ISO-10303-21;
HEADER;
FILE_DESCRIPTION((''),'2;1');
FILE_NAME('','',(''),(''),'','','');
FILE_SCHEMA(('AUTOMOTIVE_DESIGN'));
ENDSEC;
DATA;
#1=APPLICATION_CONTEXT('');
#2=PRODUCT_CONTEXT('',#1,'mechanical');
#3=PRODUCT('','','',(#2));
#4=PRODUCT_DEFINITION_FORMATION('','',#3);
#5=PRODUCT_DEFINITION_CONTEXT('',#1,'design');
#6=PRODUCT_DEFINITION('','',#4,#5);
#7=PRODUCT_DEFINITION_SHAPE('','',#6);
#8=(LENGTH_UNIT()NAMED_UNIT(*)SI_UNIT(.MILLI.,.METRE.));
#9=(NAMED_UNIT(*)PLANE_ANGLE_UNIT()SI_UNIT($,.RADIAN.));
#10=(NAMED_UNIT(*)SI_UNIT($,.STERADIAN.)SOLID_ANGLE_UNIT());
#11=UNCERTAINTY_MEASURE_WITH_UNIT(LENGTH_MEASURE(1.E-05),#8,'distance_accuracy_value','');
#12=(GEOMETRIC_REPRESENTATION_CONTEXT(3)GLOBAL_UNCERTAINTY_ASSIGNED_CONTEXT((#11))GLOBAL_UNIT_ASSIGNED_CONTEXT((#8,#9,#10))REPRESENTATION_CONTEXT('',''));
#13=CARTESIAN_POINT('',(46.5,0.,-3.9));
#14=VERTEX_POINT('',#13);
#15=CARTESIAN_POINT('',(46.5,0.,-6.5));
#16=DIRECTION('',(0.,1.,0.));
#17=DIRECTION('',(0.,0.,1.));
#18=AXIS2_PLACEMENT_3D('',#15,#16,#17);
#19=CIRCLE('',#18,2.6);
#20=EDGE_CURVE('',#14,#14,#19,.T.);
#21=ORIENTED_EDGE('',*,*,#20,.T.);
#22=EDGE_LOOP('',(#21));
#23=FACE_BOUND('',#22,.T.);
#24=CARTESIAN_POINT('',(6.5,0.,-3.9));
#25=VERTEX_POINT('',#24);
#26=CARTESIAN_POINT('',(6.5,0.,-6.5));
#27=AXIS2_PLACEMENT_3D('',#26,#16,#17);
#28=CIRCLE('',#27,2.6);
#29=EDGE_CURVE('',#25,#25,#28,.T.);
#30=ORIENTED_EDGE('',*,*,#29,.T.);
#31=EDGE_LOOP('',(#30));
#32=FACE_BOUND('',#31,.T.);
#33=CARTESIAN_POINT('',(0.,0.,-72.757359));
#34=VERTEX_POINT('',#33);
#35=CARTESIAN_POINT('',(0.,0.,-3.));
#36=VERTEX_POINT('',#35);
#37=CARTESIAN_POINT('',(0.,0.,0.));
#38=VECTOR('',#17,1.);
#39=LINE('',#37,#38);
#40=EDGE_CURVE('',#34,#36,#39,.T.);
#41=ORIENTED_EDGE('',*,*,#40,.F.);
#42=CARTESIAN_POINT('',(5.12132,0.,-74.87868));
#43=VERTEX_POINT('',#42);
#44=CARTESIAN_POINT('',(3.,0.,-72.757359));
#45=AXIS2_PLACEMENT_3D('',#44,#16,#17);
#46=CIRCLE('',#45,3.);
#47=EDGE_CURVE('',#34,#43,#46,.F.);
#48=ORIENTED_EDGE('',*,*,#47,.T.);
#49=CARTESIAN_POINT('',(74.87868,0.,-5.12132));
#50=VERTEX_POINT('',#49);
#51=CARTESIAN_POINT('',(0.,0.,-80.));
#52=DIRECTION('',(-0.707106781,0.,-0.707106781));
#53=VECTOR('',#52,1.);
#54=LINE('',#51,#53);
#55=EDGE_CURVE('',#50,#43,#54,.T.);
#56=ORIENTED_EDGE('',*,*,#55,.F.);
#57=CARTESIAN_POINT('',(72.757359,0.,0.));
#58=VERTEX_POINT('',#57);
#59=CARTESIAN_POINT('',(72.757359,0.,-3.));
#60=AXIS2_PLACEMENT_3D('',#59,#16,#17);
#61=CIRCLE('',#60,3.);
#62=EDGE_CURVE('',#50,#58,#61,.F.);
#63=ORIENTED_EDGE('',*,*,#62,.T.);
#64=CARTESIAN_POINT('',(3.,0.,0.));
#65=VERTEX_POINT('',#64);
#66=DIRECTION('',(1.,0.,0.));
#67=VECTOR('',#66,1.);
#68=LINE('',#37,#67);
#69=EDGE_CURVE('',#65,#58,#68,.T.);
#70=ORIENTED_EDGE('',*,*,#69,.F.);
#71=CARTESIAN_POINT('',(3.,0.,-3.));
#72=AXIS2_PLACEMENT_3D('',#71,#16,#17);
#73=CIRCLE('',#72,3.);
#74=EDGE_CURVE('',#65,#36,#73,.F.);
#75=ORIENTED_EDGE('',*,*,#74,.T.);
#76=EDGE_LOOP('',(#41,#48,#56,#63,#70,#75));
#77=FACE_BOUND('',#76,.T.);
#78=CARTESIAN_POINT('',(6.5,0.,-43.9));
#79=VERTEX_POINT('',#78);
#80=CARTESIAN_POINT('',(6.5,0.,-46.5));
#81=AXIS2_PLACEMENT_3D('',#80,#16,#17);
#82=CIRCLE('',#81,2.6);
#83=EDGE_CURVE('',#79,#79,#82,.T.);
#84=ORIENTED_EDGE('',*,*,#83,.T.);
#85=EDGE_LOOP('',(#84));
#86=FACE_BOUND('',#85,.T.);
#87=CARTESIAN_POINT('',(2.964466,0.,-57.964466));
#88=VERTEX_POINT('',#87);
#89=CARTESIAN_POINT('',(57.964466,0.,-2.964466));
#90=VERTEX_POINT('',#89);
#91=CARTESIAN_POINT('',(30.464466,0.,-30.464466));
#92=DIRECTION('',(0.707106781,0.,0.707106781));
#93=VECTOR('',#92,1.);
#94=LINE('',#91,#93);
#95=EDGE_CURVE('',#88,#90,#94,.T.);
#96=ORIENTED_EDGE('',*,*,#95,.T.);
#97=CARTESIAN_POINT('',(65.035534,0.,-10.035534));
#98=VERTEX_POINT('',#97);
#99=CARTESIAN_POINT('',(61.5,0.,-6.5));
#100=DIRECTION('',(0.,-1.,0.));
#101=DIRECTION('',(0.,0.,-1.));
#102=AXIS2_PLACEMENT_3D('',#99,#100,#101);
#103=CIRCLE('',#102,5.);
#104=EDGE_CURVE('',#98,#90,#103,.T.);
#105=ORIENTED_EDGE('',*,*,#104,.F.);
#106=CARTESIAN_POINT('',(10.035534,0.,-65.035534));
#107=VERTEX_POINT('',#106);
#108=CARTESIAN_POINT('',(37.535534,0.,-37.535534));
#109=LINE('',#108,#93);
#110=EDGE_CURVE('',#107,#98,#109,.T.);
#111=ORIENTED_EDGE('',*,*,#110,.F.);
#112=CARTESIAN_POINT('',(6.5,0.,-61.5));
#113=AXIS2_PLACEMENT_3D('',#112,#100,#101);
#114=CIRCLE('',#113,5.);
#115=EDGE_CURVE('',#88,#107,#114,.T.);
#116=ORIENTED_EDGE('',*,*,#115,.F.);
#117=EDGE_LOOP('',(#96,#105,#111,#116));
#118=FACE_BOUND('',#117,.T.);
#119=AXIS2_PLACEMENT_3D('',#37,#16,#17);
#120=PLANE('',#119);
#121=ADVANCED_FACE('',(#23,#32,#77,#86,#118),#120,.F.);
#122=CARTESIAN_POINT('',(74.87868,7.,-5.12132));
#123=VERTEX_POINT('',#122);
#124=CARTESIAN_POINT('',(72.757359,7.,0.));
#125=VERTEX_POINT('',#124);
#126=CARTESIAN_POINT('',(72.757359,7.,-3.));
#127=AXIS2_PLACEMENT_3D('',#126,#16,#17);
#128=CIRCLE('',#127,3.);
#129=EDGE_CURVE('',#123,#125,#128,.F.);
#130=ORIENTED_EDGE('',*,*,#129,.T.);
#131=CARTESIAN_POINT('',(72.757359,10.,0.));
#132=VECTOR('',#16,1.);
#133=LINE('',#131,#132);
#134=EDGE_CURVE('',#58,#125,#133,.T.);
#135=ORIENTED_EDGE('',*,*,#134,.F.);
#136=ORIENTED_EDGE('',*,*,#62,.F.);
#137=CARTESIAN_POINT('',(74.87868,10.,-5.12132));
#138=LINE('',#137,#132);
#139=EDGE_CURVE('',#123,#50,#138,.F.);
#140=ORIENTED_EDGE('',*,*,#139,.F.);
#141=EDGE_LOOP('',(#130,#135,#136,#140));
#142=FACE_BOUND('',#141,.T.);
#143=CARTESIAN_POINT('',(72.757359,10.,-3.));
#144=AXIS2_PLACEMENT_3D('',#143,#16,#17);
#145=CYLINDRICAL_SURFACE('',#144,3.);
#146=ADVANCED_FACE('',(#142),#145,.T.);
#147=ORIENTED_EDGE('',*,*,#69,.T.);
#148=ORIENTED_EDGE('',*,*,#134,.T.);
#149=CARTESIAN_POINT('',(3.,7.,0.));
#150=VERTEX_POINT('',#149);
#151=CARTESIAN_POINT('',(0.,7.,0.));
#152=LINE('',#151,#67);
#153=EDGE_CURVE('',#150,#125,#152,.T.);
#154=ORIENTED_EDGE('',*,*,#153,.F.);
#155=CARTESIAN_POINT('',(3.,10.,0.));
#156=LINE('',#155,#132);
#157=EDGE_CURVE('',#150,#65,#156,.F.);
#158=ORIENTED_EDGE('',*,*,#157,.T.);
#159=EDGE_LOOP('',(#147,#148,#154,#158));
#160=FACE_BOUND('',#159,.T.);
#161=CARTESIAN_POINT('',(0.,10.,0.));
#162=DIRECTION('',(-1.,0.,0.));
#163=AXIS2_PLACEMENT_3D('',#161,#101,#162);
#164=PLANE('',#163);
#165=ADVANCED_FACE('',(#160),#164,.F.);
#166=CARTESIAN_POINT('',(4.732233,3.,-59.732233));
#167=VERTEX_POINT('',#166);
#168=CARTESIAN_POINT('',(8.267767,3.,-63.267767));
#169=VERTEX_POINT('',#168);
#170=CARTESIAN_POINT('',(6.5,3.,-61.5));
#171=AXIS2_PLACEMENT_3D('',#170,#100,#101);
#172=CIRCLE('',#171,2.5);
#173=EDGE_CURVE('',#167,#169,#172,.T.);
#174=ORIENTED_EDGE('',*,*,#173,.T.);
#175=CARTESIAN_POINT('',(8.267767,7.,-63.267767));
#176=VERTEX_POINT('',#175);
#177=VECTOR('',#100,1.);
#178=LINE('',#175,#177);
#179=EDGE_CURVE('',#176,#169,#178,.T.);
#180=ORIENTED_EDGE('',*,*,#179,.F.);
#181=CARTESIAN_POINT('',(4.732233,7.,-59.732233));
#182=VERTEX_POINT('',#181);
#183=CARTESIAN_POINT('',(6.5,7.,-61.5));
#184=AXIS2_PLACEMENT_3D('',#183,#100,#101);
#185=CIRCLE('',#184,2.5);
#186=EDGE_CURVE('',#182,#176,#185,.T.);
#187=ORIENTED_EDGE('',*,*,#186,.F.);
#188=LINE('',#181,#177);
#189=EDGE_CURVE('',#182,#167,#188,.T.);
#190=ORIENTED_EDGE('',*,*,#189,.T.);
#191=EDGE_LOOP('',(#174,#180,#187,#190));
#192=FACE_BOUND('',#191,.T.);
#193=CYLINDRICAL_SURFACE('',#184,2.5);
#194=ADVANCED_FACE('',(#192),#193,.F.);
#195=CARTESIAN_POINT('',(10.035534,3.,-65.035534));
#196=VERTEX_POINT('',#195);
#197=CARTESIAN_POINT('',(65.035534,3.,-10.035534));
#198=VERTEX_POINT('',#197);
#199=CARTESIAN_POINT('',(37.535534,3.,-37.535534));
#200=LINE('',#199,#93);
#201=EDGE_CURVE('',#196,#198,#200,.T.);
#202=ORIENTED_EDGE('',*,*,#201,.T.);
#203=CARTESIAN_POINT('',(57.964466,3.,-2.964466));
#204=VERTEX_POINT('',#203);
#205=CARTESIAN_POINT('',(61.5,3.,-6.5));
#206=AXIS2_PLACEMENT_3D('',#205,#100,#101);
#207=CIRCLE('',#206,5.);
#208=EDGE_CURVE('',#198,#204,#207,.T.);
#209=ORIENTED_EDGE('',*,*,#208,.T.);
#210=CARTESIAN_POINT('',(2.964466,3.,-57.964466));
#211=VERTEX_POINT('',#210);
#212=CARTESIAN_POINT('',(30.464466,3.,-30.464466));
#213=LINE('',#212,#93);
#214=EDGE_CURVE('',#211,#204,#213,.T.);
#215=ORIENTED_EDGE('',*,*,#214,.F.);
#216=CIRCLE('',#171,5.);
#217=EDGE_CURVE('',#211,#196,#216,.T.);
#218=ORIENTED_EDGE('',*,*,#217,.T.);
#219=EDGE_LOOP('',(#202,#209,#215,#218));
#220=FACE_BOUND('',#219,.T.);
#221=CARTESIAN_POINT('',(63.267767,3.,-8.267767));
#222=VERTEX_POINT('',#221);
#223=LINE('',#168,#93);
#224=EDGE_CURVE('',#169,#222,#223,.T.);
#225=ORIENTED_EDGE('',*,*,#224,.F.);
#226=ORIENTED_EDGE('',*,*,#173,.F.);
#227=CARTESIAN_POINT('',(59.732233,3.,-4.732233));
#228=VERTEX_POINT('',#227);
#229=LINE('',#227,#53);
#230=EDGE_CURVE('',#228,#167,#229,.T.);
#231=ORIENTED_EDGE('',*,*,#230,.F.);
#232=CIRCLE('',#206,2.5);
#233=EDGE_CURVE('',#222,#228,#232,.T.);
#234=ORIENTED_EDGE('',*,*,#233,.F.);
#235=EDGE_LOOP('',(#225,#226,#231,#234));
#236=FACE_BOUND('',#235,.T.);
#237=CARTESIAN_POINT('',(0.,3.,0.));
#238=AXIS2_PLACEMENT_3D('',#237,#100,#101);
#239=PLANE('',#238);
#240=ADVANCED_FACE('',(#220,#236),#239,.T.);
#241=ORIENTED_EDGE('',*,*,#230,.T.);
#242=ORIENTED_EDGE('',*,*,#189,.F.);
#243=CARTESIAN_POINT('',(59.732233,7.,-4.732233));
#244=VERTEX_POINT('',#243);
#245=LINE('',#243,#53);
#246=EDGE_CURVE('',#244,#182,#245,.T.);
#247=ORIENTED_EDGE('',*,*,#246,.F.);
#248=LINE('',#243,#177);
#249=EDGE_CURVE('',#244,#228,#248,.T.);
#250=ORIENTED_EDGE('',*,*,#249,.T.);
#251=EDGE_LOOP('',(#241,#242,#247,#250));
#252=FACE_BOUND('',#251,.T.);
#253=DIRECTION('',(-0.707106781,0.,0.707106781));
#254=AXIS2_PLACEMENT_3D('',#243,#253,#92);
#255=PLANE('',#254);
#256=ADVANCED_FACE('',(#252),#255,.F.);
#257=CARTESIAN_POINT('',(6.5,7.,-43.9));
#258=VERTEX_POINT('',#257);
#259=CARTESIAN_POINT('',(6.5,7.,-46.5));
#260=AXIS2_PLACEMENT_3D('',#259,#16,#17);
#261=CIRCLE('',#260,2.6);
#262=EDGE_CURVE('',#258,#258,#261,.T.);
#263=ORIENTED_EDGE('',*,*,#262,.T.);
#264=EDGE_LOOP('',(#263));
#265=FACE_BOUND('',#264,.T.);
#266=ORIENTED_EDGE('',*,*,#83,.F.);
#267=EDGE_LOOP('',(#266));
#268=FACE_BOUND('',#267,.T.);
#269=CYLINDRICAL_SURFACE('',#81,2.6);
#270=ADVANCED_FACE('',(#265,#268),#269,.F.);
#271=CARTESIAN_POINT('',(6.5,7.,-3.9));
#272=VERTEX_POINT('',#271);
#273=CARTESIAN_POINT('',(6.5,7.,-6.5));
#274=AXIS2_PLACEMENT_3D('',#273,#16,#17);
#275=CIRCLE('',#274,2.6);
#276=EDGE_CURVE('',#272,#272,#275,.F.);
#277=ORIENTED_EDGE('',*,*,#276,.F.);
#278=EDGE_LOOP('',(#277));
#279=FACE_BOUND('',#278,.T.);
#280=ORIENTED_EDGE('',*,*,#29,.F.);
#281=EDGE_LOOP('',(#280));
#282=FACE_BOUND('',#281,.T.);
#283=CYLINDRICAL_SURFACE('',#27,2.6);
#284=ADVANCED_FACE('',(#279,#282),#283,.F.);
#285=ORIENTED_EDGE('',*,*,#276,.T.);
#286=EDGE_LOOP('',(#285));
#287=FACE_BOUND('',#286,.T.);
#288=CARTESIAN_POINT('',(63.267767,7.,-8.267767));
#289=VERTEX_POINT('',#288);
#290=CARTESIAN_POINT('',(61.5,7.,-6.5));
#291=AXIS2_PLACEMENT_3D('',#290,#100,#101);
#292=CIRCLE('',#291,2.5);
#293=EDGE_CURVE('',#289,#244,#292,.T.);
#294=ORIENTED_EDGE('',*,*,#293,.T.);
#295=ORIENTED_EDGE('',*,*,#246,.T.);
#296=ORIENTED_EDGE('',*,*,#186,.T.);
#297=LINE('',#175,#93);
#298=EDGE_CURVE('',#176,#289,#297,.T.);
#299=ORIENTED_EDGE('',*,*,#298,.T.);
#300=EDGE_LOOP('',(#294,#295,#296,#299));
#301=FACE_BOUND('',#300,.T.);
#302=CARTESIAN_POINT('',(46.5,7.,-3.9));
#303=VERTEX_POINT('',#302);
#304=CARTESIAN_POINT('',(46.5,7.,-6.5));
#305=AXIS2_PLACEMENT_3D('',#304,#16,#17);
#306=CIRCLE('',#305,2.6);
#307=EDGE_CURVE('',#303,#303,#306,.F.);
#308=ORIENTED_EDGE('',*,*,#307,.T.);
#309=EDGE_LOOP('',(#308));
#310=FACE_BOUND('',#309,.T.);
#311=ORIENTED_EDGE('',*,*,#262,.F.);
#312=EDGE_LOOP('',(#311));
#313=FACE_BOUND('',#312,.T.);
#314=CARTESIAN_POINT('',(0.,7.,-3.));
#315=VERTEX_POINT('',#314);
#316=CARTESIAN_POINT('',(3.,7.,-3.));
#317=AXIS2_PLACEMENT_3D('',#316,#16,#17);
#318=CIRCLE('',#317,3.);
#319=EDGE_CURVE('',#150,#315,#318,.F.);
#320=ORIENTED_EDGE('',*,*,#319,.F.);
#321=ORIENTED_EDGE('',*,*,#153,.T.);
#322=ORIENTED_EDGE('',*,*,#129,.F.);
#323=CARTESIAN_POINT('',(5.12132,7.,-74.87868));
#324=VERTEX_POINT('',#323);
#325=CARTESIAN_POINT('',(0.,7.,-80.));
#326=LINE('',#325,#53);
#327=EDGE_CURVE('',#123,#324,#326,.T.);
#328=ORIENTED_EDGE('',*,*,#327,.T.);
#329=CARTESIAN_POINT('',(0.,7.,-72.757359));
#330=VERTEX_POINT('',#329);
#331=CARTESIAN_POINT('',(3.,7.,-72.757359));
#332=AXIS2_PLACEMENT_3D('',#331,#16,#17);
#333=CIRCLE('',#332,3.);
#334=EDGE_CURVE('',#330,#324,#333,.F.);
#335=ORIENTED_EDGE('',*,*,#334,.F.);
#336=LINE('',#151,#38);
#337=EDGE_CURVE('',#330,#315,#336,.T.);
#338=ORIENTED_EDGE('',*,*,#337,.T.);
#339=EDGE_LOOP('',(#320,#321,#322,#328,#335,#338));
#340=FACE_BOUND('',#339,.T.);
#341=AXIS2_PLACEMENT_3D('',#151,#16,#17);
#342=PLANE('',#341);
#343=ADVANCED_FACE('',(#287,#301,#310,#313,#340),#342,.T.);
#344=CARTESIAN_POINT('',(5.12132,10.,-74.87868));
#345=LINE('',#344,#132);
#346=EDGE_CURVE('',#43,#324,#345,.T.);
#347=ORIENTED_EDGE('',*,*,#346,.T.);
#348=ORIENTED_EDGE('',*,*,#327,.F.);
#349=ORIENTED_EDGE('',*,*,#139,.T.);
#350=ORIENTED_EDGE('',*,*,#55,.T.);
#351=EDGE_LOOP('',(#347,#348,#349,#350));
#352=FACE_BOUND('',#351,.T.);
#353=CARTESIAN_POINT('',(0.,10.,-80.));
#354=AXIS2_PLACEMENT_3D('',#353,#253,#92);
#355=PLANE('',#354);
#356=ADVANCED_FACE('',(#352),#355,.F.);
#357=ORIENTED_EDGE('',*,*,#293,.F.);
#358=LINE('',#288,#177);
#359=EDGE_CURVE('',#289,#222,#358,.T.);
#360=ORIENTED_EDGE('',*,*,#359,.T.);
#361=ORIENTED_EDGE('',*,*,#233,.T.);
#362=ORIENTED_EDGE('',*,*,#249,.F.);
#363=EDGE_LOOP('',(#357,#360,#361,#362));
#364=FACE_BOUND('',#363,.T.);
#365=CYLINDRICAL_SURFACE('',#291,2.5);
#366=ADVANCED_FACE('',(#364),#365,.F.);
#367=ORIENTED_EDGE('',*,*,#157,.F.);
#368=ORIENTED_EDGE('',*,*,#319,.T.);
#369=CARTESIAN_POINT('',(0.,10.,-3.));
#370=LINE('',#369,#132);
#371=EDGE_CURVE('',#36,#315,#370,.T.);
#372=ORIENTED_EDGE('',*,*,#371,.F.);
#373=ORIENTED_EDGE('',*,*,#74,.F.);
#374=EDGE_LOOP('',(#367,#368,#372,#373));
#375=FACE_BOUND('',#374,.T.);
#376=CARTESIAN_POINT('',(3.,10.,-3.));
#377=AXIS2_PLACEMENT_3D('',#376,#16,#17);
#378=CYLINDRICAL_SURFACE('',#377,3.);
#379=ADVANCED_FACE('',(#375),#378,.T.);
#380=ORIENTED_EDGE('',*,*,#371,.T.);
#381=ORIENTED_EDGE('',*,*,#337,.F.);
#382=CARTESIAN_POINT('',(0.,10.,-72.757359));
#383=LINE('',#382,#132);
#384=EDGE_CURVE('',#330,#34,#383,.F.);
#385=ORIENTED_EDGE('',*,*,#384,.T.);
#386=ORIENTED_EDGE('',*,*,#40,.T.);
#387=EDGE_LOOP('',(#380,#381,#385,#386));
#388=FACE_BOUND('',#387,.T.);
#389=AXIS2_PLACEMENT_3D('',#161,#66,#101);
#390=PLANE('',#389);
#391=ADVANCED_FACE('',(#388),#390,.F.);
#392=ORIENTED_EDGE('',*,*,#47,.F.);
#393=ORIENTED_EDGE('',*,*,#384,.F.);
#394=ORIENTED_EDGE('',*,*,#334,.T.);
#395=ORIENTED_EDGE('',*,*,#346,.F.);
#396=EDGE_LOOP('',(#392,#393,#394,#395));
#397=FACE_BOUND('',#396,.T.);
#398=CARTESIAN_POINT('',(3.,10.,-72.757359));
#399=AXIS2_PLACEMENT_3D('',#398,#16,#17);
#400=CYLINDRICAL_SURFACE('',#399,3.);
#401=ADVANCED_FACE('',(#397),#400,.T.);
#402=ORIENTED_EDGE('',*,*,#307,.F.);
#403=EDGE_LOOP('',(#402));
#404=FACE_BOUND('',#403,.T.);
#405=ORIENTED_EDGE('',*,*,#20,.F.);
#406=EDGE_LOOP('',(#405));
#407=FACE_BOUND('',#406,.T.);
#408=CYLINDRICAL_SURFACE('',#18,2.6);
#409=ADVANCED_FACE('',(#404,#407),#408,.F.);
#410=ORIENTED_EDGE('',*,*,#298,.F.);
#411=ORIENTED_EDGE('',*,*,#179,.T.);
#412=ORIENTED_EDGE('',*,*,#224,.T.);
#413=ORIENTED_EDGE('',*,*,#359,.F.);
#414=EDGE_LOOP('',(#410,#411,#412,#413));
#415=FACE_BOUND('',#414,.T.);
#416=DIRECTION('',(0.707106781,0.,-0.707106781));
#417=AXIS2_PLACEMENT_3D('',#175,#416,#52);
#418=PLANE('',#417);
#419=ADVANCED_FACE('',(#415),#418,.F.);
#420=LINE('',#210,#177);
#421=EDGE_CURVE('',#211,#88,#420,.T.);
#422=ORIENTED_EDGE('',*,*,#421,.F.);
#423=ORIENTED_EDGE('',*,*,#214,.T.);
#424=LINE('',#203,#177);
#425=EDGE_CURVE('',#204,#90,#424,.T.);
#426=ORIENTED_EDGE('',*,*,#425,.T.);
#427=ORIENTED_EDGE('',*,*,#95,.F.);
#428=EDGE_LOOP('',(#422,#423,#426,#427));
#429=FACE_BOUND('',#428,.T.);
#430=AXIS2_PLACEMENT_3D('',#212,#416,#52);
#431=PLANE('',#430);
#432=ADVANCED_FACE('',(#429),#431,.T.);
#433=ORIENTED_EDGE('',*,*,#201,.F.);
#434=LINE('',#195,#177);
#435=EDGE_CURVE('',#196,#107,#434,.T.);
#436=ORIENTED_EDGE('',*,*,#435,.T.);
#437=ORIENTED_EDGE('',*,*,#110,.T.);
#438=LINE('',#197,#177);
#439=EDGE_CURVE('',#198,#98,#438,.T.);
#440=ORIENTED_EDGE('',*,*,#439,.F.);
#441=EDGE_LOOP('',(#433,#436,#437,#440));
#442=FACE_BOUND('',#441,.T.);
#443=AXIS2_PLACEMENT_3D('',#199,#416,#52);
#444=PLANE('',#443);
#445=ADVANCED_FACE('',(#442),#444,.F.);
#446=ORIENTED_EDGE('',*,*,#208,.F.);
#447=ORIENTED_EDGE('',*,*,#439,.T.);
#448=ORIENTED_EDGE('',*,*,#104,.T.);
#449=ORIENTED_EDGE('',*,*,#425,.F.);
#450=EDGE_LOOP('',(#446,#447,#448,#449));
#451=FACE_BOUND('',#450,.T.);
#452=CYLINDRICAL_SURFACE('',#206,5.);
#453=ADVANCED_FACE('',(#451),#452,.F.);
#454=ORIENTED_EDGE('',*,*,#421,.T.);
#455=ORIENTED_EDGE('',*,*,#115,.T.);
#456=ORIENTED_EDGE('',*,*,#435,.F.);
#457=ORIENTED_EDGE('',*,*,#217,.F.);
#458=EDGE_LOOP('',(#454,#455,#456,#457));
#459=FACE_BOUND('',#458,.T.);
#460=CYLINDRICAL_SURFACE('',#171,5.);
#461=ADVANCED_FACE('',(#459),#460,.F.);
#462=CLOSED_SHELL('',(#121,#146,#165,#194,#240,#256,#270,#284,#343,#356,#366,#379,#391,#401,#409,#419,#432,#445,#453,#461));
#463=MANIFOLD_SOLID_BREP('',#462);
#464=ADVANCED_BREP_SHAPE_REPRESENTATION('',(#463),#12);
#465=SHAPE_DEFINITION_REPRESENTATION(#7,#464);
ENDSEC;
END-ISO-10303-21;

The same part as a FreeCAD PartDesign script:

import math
import FreeCAD as App
import Part
import Sketcher
from FreeCAD import Vector
Q = App.Units.Quantity


def edges_at(feature, points):
    """Names of the edges that pass closest to the given points."""
    edges = feature.Shape.Edges
    near = lambda p: min(range(len(edges)), key=lambda i: edges[i].distToShape(Part.Vertex(*p))[0])
    return sorted({f"Edge{near(p) + 1}" for p in points})

doc = App.newDocument("Part")
params = doc.addObject("Spreadsheet::Sheet", "Params")
for row, (alias, value) in enumerate([
    ("sketch1_width", "80 mm"),
    ("pad1_length", "10 mm"),
    ("sketch2_diameter", "5.2 mm"),
    ("pocket1_length", "10 mm"),
    ("fillet_radius", "3 mm"),
    ("fillet2_radius", "3 mm"),
    ("fillet3_radius", "3 mm"),
    ("sketch3_diameter", "11 mm"),
    ("pocket2_length", "5 mm"),
    ("pocket3_length", "9 mm"),
    ("sketch5_radius", "2.6 mm"),
    ("pad2_length", "5 mm"),
    ("sketch6_radius", "5.5 mm"),
    ("pocket4_length", "5 mm"),
    ("sketch7_radius", "5.5 mm"),
    ("pad3_length", "5 mm"),
    ("sketch8_diameter", "11 mm"),
    ("pad4_length", "5 mm"),
    ("sketch9_diameter", "11 mm"),
    ("pocket5_length", "3 mm"),
    ("sketch10_diameter", "5.3 mm"),
    ("pocket6_length", "3 mm"),
    ("sketch11_diameter", "5.3 mm"),
    ("pocket7_length", "5 mm"),
    ("sketch12_diameter", "5.3 mm"),
    ("pad5_length", "10 mm"),
    ("sketch13_diameter", "11 mm"),
    ("pad6_length", "3 mm"),
    ("sketch14_radius", "5 mm"),
    ("pocket8_length", "3 mm"),
    ("sketch15_diameter", "11 mm"),
    ("sketch15_diameter2", "5.2 mm"),
    ("pad7_length", "5 mm"),
    ("pocket9_length", "3 mm"),
    ("sketch17_radius", "2.5 mm"),
    ("sketch18_diameter", "5.2 mm"),
], start=1):
    params.set(f"A{row}", alias)
    params.set(f"B{row}", "=" + value)
    params.setAlias(f"B{row}", alias)

body = doc.addObject("PartDesign::Body", "Body")

# Sketch on XZ plane
sketch1 = doc.addObject("Sketcher::SketchObject", "Sketch")
body.addObject(sketch1)
sketch1.AttachmentSupport = (doc.XZ_Plane, [""])
sketch1.MapMode = "FlatFace"
sketch1.addGeometry(Part.LineSegment(Vector(0, -80, 0), Vector(0, 0, 0)), False)
sketch1.addGeometry(Part.LineSegment(Vector(0, 0, 0), Vector(80, 0, 0)), False)
sketch1.addGeometry(Part.LineSegment(Vector(80, 0, 0), Vector(0, -80, 0)), False)
sketch1.addConstraint(Sketcher.Constraint("Coincident", 0, 2, 1, 1))
sketch1.addConstraint(Sketcher.Constraint("Coincident", 1, 2, 2, 1))
sketch1.addConstraint(Sketcher.Constraint("Coincident", 2, 2, 0, 1))
sketch1.addConstraint(Sketcher.Constraint("Vertical", 0))
sketch1.addConstraint(Sketcher.Constraint("Horizontal", 1))
sketch1.addConstraint(Sketcher.Constraint("Coincident", 0, 2, -1, 1))
sketch1.addConstraint(Sketcher.Constraint("Equal", 1, 0))
sketch1.addConstraint(Sketcher.Constraint("DistanceX", 1, 1, 1, 2, 80.0))
sketch1.setExpression("Constraints[7]", "Params.sketch1_width")
pad1 = doc.addObject("PartDesign::Pad", "Pad")
body.addObject(pad1)
pad1.Profile = sketch1
pad1.setExpression("Length", "Params.pad1_length")
pad1.Reversed = True

# Sketch on XZ plane
sketch2 = doc.addObject("Sketcher::SketchObject", "Sketch001")
body.addObject(sketch2)
sketch2.AttachmentSupport = (doc.XZ_Plane, [""])
sketch2.MapMode = "FlatFace"
sketch2.AttachmentOffset = App.Placement(Vector(0, 0, -10), App.Rotation())
sketch2.addGeometry(Part.Circle(Vector(6.5, -6.5, 0), Vector(0, 0, 1), 2.6), False)
sketch2.addGeometry(Part.Circle(Vector(6.5, -46.5, 0), Vector(0, 0, 1), 2.6), False)
sketch2.addGeometry(Part.Circle(Vector(46.5, -6.5, 0), Vector(0, 0, 1), 2.6), False)
sketch2.addConstraint(Sketcher.Constraint("Equal", 0, 1))
sketch2.addConstraint(Sketcher.Constraint("Equal", 1, 2))
sketch2.addConstraint(Sketcher.Constraint("Horizontal", 0, 3, 2, 3))
sketch2.addConstraint(Sketcher.Constraint("Vertical", 0, 3, 1, 3))
sketch2.addConstraint(Sketcher.Constraint("Diameter", 0, 5.2))
sketch2.addConstraint(Sketcher.Constraint("DistanceY", 1, 3, 0, 3, 40.0))
sketch2.addConstraint(Sketcher.Constraint("DistanceX", 0, 3, 2, 3, 40.0))
sketch2.addConstraint(Sketcher.Constraint("DistanceX", -1, 1, 0, 3, 6.5))
sketch2.addConstraint(Sketcher.Constraint("DistanceY", 0, 3, -1, 1, 6.5))
sketch2.setExpression("Constraints[4]", "Params.sketch2_diameter")
pocket1 = doc.addObject("PartDesign::Pocket", "Pocket")
body.addObject(pocket1)
pocket1.Profile = sketch2
pocket1.setExpression("Length", "Params.pocket1_length")
pocket1.Reversed = True
doc.recompute()

fillet = doc.addObject("PartDesign::Fillet", "Fillet")
body.addObject(fillet)
fillet.Base = (pocket1, edges_at(pocket1, [(80, 5, 0)]))
fillet.setExpression("Radius", "Params.fillet_radius")
doc.recompute()

fillet2 = doc.addObject("PartDesign::Fillet", "Fillet001")
body.addObject(fillet2)
fillet2.Base = (fillet, edges_at(fillet, [(0, 5, -80)]))
fillet2.setExpression("Radius", "Params.fillet2_radius")
doc.recompute()

fillet3 = doc.addObject("PartDesign::Fillet", "Fillet002")
body.addObject(fillet3)
fillet3.Base = (fillet2, edges_at(fillet2, [(0, 5, 0)]))
fillet3.setExpression("Radius", "Params.fillet3_radius")

# Sketch on XZ plane
sketch3 = doc.addObject("Sketcher::SketchObject", "Sketch002")
body.addObject(sketch3)
sketch3.AttachmentSupport = (doc.XZ_Plane, [""])
sketch3.MapMode = "FlatFace"
sketch3.AttachmentOffset = App.Placement(Vector(0, 0, -10), App.Rotation())
sketch3.addGeometry(Part.Circle(Vector(6, -6, 0), Vector(0, 0, 1), 6), False)
sketch3.addGeometry(Part.Circle(Vector(6, -46, 0), Vector(0, 0, 1), 6), False)
sketch3.addGeometry(Part.Circle(Vector(46, -6, 0), Vector(0, 0, 1), 6), False)
sketch3.addConstraint(Sketcher.Constraint("Equal", 0, 1))
sketch3.addConstraint(Sketcher.Constraint("Equal", 1, 2))
sketch3.addConstraint(Sketcher.Constraint("Horizontal", 0, 3, 2, 3))
sketch3.addConstraint(Sketcher.Constraint("Vertical", 0, 3, 1, 3))
sketch3.addConstraint(Sketcher.Constraint("Diameter", 0, 11.0))
sketch3.addConstraint(Sketcher.Constraint("DistanceY", 1, 3, 0, 3, 40.0))
sketch3.addConstraint(Sketcher.Constraint("DistanceX", 0, 3, 2, 3, 40.0))
sketch3.addConstraint(Sketcher.Constraint("DistanceX", -1, 1, 0, 3, 6.5))
sketch3.addConstraint(Sketcher.Constraint("DistanceY", 0, 3, -1, 1, 6.5))
sketch3.setExpression("Constraints[4]", "Params.sketch3_diameter")
pocket2 = doc.addObject("PartDesign::Pocket", "Pocket001")
body.addObject(pocket2)
pocket2.Profile = sketch3
pocket2.setExpression("Length", "Params.pocket2_length")
pocket2.Reversed = True

# Sketch on XZ plane
sketch4 = doc.addObject("Sketcher::SketchObject", "Sketch003")
body.addObject(sketch4)
sketch4.AttachmentSupport = (doc.XZ_Plane, [""])
sketch4.MapMode = "FlatFace"
sketch4.addGeometry(Part.Circle(Vector(8.5, -46.5, 0), Vector(0, 0, 1), 2.6), False)
sketch4.addConstraint(Sketcher.Constraint("DistanceX", -1, 1, 0, 3, 8.5))
sketch4.addConstraint(Sketcher.Constraint("DistanceY", 0, 3, -1, 1, 46.5))
sketch4.addConstraint(Sketcher.Constraint("Diameter", 0, 5.107365))
pocket3 = doc.addObject("PartDesign::Pocket", "Pocket002")
body.addObject(pocket3)
pocket3.Profile = sketch4
pocket3.setExpression("Length", "Params.pocket3_length")

# Sketch on XZ plane
sketch5 = doc.addObject("Sketcher::SketchObject", "Sketch004")
body.addObject(sketch5)
sketch5.AttachmentSupport = (doc.XZ_Plane, [""])
sketch5.MapMode = "FlatFace"
sketch5.addGeometry(Part.ArcOfCircle(Part.Circle(Vector(8.5, -46.5, 0), Vector(0, 0, 1), 2.6), math.radians(112), math.radians(248)), False)
sketch5.addGeometry(Part.ArcOfCircle(Part.Circle(Vector(6.5, -46.5, 0), Vector(0, 0, 1), 2.6), math.radians(66), math.radians(294)), False)
sketch5.addConstraint(Sketcher.Constraint("Coincident", 0, 1, 1, 1))
sketch5.addConstraint(Sketcher.Constraint("Coincident", 1, 2, 0, 2))
sketch5.addConstraint(Sketcher.Constraint("Horizontal", 0, 3, 1, 3))
sketch5.addConstraint(Sketcher.Constraint("Radius", 1, 2.6))
sketch5.addConstraint(Sketcher.Constraint("DistanceX", 1, 3, 0, 3, 2.0))
sketch5.addConstraint(Sketcher.Constraint("DistanceX", -1, 1, 0, 3, 8.5))
sketch5.addConstraint(Sketcher.Constraint("DistanceY", 0, 3, -1, 1, 46.5))
sketch5.addConstraint(Sketcher.Constraint("Radius", 0, 2.553683))
sketch5.setExpression("Constraints[3]", "Params.sketch5_radius")
pad2 = doc.addObject("PartDesign::Pad", "Pad001")
body.addObject(pad2)
pad2.Profile = sketch5
pad2.setExpression("Length", "Params.pad2_length")
pad2.Reversed = True

# Sketch on XZ plane
sketch6 = doc.addObject("Sketcher::SketchObject", "Sketch005")
body.addObject(sketch6)
sketch6.AttachmentSupport = (doc.XZ_Plane, [""])
sketch6.MapMode = "FlatFace"
sketch6.AttachmentOffset = App.Placement(Vector(0, 0, -10), App.Rotation())
sketch6.addGeometry(Part.ArcOfCircle(Part.Circle(Vector(8, -46, 0), Vector(0, 0, 1), 6), math.radians(-100), math.radians(100)), False)
sketch6.addGeometry(Part.ArcOfCircle(Part.Circle(Vector(6, -46, 0), Vector(0, 0, 1), 6), math.radians(80), math.radians(280)), False)
sketch6.addConstraint(Sketcher.Constraint("Coincident", 0, 1, 1, 2))
sketch6.addConstraint(Sketcher.Constraint("Coincident", 1, 1, 0, 2))
sketch6.addConstraint(Sketcher.Constraint("Equal", 0, 1))
sketch6.addConstraint(Sketcher.Constraint("Horizontal", 0, 3, 1, 3))
sketch6.addConstraint(Sketcher.Constraint("Radius", 0, 5.5))
sketch6.addConstraint(Sketcher.Constraint("DistanceX", 1, 3, 0, 3, 2.0))
sketch6.addConstraint(Sketcher.Constraint("DistanceX", -1, 1, 0, 3, 8.5))
sketch6.addConstraint(Sketcher.Constraint("DistanceY", 0, 3, -1, 1, 46.5))
sketch6.setExpression("Constraints[4]", "Params.sketch6_radius")
pocket4 = doc.addObject("PartDesign::Pocket", "Pocket003")
body.addObject(pocket4)
pocket4.Profile = sketch6
pocket4.setExpression("Length", "Params.pocket4_length")
pocket4.Reversed = True

# Sketch on XZ plane
sketch7 = doc.addObject("Sketcher::SketchObject", "Sketch006")
body.addObject(sketch7)
sketch7.AttachmentSupport = (doc.XZ_Plane, [""])
sketch7.MapMode = "FlatFace"
sketch7.AttachmentOffset = App.Placement(Vector(0, 0, -10), App.Rotation())
sketch7.addGeometry(Part.ArcOfCircle(Part.Circle(Vector(8, -46, 0), Vector(0, 0, 1), 6), math.radians(100), math.radians(260)), False)
sketch7.addGeometry(Part.ArcOfCircle(Part.Circle(Vector(6, -46, 0), Vector(0, 0, 1), 6), math.radians(80), math.radians(280)), False)
sketch7.addConstraint(Sketcher.Constraint("Coincident", 0, 1, 1, 1))
sketch7.addConstraint(Sketcher.Constraint("Coincident", 1, 2, 0, 2))
sketch7.addConstraint(Sketcher.Constraint("Equal", 0, 1))
sketch7.addConstraint(Sketcher.Constraint("Horizontal", 0, 3, 1, 3))
sketch7.addConstraint(Sketcher.Constraint("Radius", 0, 5.5))
sketch7.addConstraint(Sketcher.Constraint("DistanceX", 1, 3, 0, 3, 2.0))
sketch7.addConstraint(Sketcher.Constraint("DistanceX", -1, 1, 0, 3, 8.5))
sketch7.addConstraint(Sketcher.Constraint("DistanceY", 0, 3, -1, 1, 46.5))
sketch7.setExpression("Constraints[4]", "Params.sketch7_radius")
pad3 = doc.addObject("PartDesign::Pad", "Pad002")
body.addObject(pad3)
pad3.Profile = sketch7
pad3.setExpression("Length", "Params.pad3_length")

# Sketch on XZ plane
sketch8 = doc.addObject("Sketcher::SketchObject", "Sketch007")
body.addObject(sketch8)
sketch8.AttachmentSupport = (doc.XZ_Plane, [""])
sketch8.MapMode = "FlatFace"
sketch8.AttachmentOffset = App.Placement(Vector(0, 0, -10), App.Rotation())
sketch8.addGeometry(Part.Circle(Vector(8, -46, 0), Vector(0, 0, 1), 6), False)
sketch8.addConstraint(Sketcher.Constraint("Diameter", 0, 11.0))
sketch8.addConstraint(Sketcher.Constraint("DistanceX", -1, 1, 0, 3, 8.5))
sketch8.addConstraint(Sketcher.Constraint("DistanceY", 0, 3, -1, 1, 46.5))
sketch8.setExpression("Constraints[0]", "Params.sketch8_diameter")
pad4 = doc.addObject("PartDesign::Pad", "Pad003")
body.addObject(pad4)
pad4.Profile = sketch8
pad4.setExpression("Length", "Params.pad4_length")

# Sketch on XZ plane
sketch9 = doc.addObject("Sketcher::SketchObject", "Sketch008")
body.addObject(sketch9)
sketch9.AttachmentSupport = (doc.XZ_Plane, [""])
sketch9.MapMode = "FlatFace"
sketch9.AttachmentOffset = App.Placement(Vector(0, 0, -10), App.Rotation())
sketch9.addGeometry(Part.Circle(Vector(8, -46, 0), Vector(0, 0, 1), 6), False)
sketch9.addConstraint(Sketcher.Constraint("Diameter", 0, 11.0))
sketch9.addConstraint(Sketcher.Constraint("DistanceX", -1, 1, 0, 3, 8.5))
sketch9.addConstraint(Sketcher.Constraint("DistanceY", 0, 3, -1, 1, 46.5))
sketch9.setExpression("Constraints[0]", "Params.sketch9_diameter")
pocket5 = doc.addObject("PartDesign::Pocket", "Pocket004")
body.addObject(pocket5)
pocket5.Profile = sketch9
pocket5.setExpression("Length", "Params.pocket5_length")
pocket5.Reversed = True

# Sketch on XZ plane
sketch10 = doc.addObject("Sketcher::SketchObject", "Sketch009")
body.addObject(sketch10)
sketch10.AttachmentSupport = (doc.XZ_Plane, [""])
sketch10.MapMode = "FlatFace"
sketch10.AttachmentOffset = App.Placement(Vector(0, 0, -5), App.Rotation())
sketch10.addGeometry(Part.Circle(Vector(8.5, -46.5, 0), Vector(0, 0, 1), 2.6), False)
sketch10.addConstraint(Sketcher.Constraint("Diameter", 0, 5.3))
sketch10.addConstraint(Sketcher.Constraint("DistanceX", -1, 1, 0, 3, 8.5))
sketch10.addConstraint(Sketcher.Constraint("DistanceY", 0, 3, -1, 1, 46.5))
sketch10.setExpression("Constraints[0]", "Params.sketch10_diameter")
pocket6 = doc.addObject("PartDesign::Pocket", "Pocket005")
body.addObject(pocket6)
pocket6.Profile = sketch10
pocket6.setExpression("Length", "Params.pocket6_length")

# Sketch on XZ plane
sketch11 = doc.addObject("Sketcher::SketchObject", "Sketch010")
body.addObject(sketch11)
sketch11.AttachmentSupport = (doc.XZ_Plane, [""])
sketch11.MapMode = "FlatFace"
sketch11.addGeometry(Part.Circle(Vector(8.5, -46.5, 0), Vector(0, 0, 1), 2.6), False)
sketch11.addConstraint(Sketcher.Constraint("Diameter", 0, 5.3))
sketch11.addConstraint(Sketcher.Constraint("DistanceX", -1, 1, 0, 3, 8.5))
sketch11.addConstraint(Sketcher.Constraint("DistanceY", 0, 3, -1, 1, 46.5))
sketch11.setExpression("Constraints[0]", "Params.sketch11_diameter")
pocket7 = doc.addObject("PartDesign::Pocket", "Pocket006")
body.addObject(pocket7)
pocket7.Profile = sketch11
pocket7.setExpression("Length", "Params.pocket7_length")

# Sketch on XZ plane
sketch12 = doc.addObject("Sketcher::SketchObject", "Sketch011")
body.addObject(sketch12)
sketch12.AttachmentSupport = (doc.XZ_Plane, [""])
sketch12.MapMode = "FlatFace"
sketch12.addGeometry(Part.Circle(Vector(8.5, -46.5, 0), Vector(0, 0, 1), 2.6), False)
sketch12.addConstraint(Sketcher.Constraint("Diameter", 0, 5.3))
sketch12.addConstraint(Sketcher.Constraint("DistanceX", -1, 1, 0, 3, 8.5))
sketch12.addConstraint(Sketcher.Constraint("DistanceY", 0, 3, -1, 1, 46.5))
sketch12.setExpression("Constraints[0]", "Params.sketch12_diameter")
pad5 = doc.addObject("PartDesign::Pad", "Pad004")
body.addObject(pad5)
pad5.Profile = sketch12
pad5.setExpression("Length", "Params.pad5_length")
pad5.Reversed = True

# Sketch on XZ plane
sketch13 = doc.addObject("Sketcher::SketchObject", "Sketch012")
body.addObject(sketch13)
sketch13.AttachmentSupport = (doc.XZ_Plane, [""])
sketch13.MapMode = "FlatFace"
sketch13.AttachmentOffset = App.Placement(Vector(0, 0, -10), App.Rotation())
sketch13.addGeometry(Part.Circle(Vector(8, -46, 0), Vector(0, 0, 1), 6), False)
sketch13.addConstraint(Sketcher.Constraint("Diameter", 0, 11.0))
sketch13.addConstraint(Sketcher.Constraint("DistanceX", -1, 1, 0, 3, 8.5))
sketch13.addConstraint(Sketcher.Constraint("DistanceY", 0, 3, -1, 1, 46.5))
sketch13.setExpression("Constraints[0]", "Params.sketch13_diameter")
pad6 = doc.addObject("PartDesign::Pad", "Pad005")
body.addObject(pad6)
pad6.Profile = sketch13
pad6.setExpression("Length", "Params.pad6_length")

# Sketch on XZ plane
sketch14 = doc.addObject("Sketcher::SketchObject", "Sketch013")
body.addObject(sketch14)
sketch14.AttachmentSupport = (doc.XZ_Plane, [""])
sketch14.MapMode = "FlatFace"
sketch14.addGeometry(Part.ArcOfCircle(Part.Circle(Vector(6.5, -61.5, 0), Vector(0, 0, 1), 5), math.radians(135), math.radians(270)), False)
sketch14.addGeometry(Part.ArcOfCircle(Part.Circle(Vector(6.5, -61.5, 0), Vector(0, 0, 1), 5), math.radians(-90), math.radians(-45)), False)
sketch14.addGeometry(Part.LineSegment(Vector(10, -65, 0), Vector(65, -10, 0)), False)
sketch14.addGeometry(Part.ArcOfCircle(Part.Circle(Vector(61.5, -6.5, 0), Vector(0, 0, 1), 5), math.radians(-45), math.radians(0)), False)
sketch14.addGeometry(Part.ArcOfCircle(Part.Circle(Vector(61.5, -6.5, 0), Vector(0, 0, 1), 5), math.radians(0), math.radians(135)), False)
sketch14.addGeometry(Part.LineSegment(Vector(58, -3, 0), Vector(3, -58, 0)), False)
sketch14.addConstraint(Sketcher.Constraint("Tangent", 0, 2, 1, 1))
sketch14.addConstraint(Sketcher.Constraint("Tangent", 1, 2, 2, 1))
sketch14.addConstraint(Sketcher.Constraint("Tangent", 2, 2, 3, 1))
sketch14.addConstraint(Sketcher.Constraint("Tangent", 3, 2, 4, 1))
sketch14.addConstraint(Sketcher.Constraint("Tangent", 4, 2, 5, 1))
sketch14.addConstraint(Sketcher.Constraint("Tangent", 5, 2, 0, 1))
sketch14.addConstraint(Sketcher.Constraint("Equal", 0, 1))
sketch14.addConstraint(Sketcher.Constraint("Equal", 1, 3))
sketch14.addConstraint(Sketcher.Constraint("Equal", 3, 4))
sketch14.addConstraint(Sketcher.Constraint("Horizontal", 4, 3, 3, 2))
sketch14.addConstraint(Sketcher.Constraint("Vertical", 1, 3, 0, 2))
sketch14.addConstraint(Sketcher.Constraint("Radius", 0, 5.0))
sketch14.addConstraint(Sketcher.Constraint("Angle", 2, Q("45 deg")))
sketch14.addConstraint(Sketcher.Constraint("DistanceX", 0, 3, 3, 3, 55.0))
sketch14.addConstraint(Sketcher.Constraint("DistanceX", -1, 1, 0, 3, 6.5))
sketch14.addConstraint(Sketcher.Constraint("DistanceY", 0, 3, -1, 1, 61.5))
sketch14.setExpression("Constraints[11]", "Params.sketch14_radius")
pocket8 = doc.addObject("PartDesign::Pocket", "Pocket007")
body.addObject(pocket8)
pocket8.Profile = sketch14
pocket8.setExpression("Length", "Params.pocket8_length")

# Sketch on XZ plane
sketch15 = doc.addObject("Sketcher::SketchObject", "Sketch014")
body.addObject(sketch15)
sketch15.AttachmentSupport = (doc.XZ_Plane, [""])
sketch15.MapMode = "FlatFace"
sketch15.AttachmentOffset = App.Placement(Vector(0, 0, -10), App.Rotation())
sketch15.addGeometry(Part.Circle(Vector(6.5, -6.5, 0), Vector(0, 0, 1), 5.5), False)
sketch15.addGeometry(Part.Circle(Vector(6.5, -6.5, 0), Vector(0, 0, 1), 2.6), False)
sketch15.addGeometry(Part.Circle(Vector(46.5, -6.5, 0), Vector(0, 0, 1), 5.5), False)
sketch15.addGeometry(Part.Circle(Vector(46.5, -6.5, 0), Vector(0, 0, 1), 2.6), False)
sketch15.addConstraint(Sketcher.Constraint("Coincident", 1, 3, 0, 3))
sketch15.addConstraint(Sketcher.Constraint("Coincident", 3, 3, 2, 3))
sketch15.addConstraint(Sketcher.Constraint("Equal", 0, 2))
sketch15.addConstraint(Sketcher.Constraint("Equal", 1, 3))
sketch15.addConstraint(Sketcher.Constraint("Horizontal", 1, 3, 2, 3))
sketch15.addConstraint(Sketcher.Constraint("Diameter", 0, 11.0))
sketch15.addConstraint(Sketcher.Constraint("Diameter", 1, 5.2))
sketch15.addConstraint(Sketcher.Constraint("DistanceX", 0, 3, 2, 3, 40.0))
sketch15.addConstraint(Sketcher.Constraint("DistanceX", -1, 1, 0, 3, 6.5))
sketch15.addConstraint(Sketcher.Constraint("DistanceY", 0, 3, -1, 1, 6.5))
sketch15.setExpression("Constraints[5]", "Params.sketch15_diameter")
sketch15.setExpression("Constraints[6]", "Params.sketch15_diameter2")
pad7 = doc.addObject("PartDesign::Pad", "Pad006")
body.addObject(pad7)
pad7.Profile = sketch15
pad7.setExpression("Length", "Params.pad7_length")

# Sketch on XZ plane
sketch16 = doc.addObject("Sketcher::SketchObject", "Sketch015")
body.addObject(sketch16)
sketch16.AttachmentSupport = (doc.XZ_Plane, [""])
sketch16.MapMode = "FlatFace"
sketch16.AttachmentOffset = App.Placement(Vector(0, 0, -10), App.Rotation())
sketch16.addGeometry(Part.LineSegment(Vector(-22, -88, 0), Vector(-22, 21, 0)), False)
sketch16.addGeometry(Part.LineSegment(Vector(-22, 21, 0), Vector(97, 21, 0)), False)
sketch16.addGeometry(Part.LineSegment(Vector(97, 21, 0), Vector(97, -88, 0)), False)
sketch16.addGeometry(Part.LineSegment(Vector(97, -88, 0), Vector(-22, -88, 0)), False)
sketch16.addConstraint(Sketcher.Constraint("Coincident", 0, 2, 1, 1))
sketch16.addConstraint(Sketcher.Constraint("Coincident", 1, 2, 2, 1))
sketch16.addConstraint(Sketcher.Constraint("Coincident", 2, 2, 3, 1))
sketch16.addConstraint(Sketcher.Constraint("Coincident", 3, 2, 0, 1))
sketch16.addConstraint(Sketcher.Constraint("Vertical", 0))
sketch16.addConstraint(Sketcher.Constraint("Horizontal", 1))
sketch16.addConstraint(Sketcher.Constraint("Vertical", 2))
sketch16.addConstraint(Sketcher.Constraint("Horizontal", 3))
sketch16.addConstraint(Sketcher.Constraint("DistanceX", 1, 1, 1, 2, 118.65596))
sketch16.addConstraint(Sketcher.Constraint("DistanceY", 0, 1, 0, 2, 108.474676))
sketch16.addConstraint(Sketcher.Constraint("DistanceY", -1, 1, 0, 2, 20.946521))
sketch16.addConstraint(Sketcher.Constraint("DistanceX", 0, 2, -1, 1, 21.889233))
pocket9 = doc.addObject("PartDesign::Pocket", "Pocket008")
body.addObject(pocket9)
pocket9.Profile = sketch16
pocket9.setExpression("Length", "Params.pocket9_length")
pocket9.Reversed = True

# Sketch on XZ plane
sketch17 = doc.addObject("Sketcher::SketchObject", "Sketch016")
body.addObject(sketch17)
sketch17.AttachmentSupport = (doc.XZ_Plane, [""])
sketch17.MapMode = "FlatFace"
sketch17.AttachmentOffset = App.Placement(Vector(0, 0, -3), App.Rotation())
sketch17.addGeometry(Part.LineSegment(Vector(8.3, -63.3, 0), Vector(63.3, -8.3, 0)), False)
sketch17.addGeometry(Part.ArcOfCircle(Part.Circle(Vector(61.5, -6.5, 0), Vector(0, 0, 1), 2.5), math.radians(-45), math.radians(135)), False)
sketch17.addGeometry(Part.LineSegment(Vector(59.7, -4.7, 0), Vector(4.7, -59.7, 0)), False)
sketch17.addGeometry(Part.ArcOfCircle(Part.Circle(Vector(6.5, -61.5, 0), Vector(0, 0, 1), 2.5), math.radians(135), math.radians(315)), False)
sketch17.addConstraint(Sketcher.Constraint("Tangent", 0, 2, 1, 1))
sketch17.addConstraint(Sketcher.Constraint("Tangent", 1, 2, 2, 1))
sketch17.addConstraint(Sketcher.Constraint("Tangent", 2, 2, 3, 1))
sketch17.addConstraint(Sketcher.Constraint("Tangent", 3, 2, 0, 1))
sketch17.addConstraint(Sketcher.Constraint("Equal", 1, 3))
sketch17.addConstraint(Sketcher.Constraint("Radius", 1, 2.5))
sketch17.addConstraint(Sketcher.Constraint("Angle", 0, Q("45 deg")))
sketch17.addConstraint(Sketcher.Constraint("DistanceX", 3, 3, 1, 3, 55.0))
sketch17.addConstraint(Sketcher.Constraint("DistanceX", -1, 1, 1, 3, 61.5))
sketch17.addConstraint(Sketcher.Constraint("DistanceY", 1, 3, -1, 1, 6.5))
sketch17.setExpression("Constraints[5]", "Params.sketch17_radius")
pocket10 = doc.addObject("PartDesign::Pocket", "Pocket009")
body.addObject(pocket10)
pocket10.Profile = sketch17
pocket10.Type = "ThroughAll"

# Sketch on XZ plane
sketch18 = doc.addObject("Sketcher::SketchObject", "Sketch017")
body.addObject(sketch18)
sketch18.AttachmentSupport = (doc.XZ_Plane, [""])
sketch18.MapMode = "FlatFace"
sketch18.AttachmentOffset = App.Placement(Vector(0, 0, -7), App.Rotation())
sketch18.addGeometry(Part.Circle(Vector(6.5, -46.5, 0), Vector(0, 0, 1), 2.6), False)
sketch18.addConstraint(Sketcher.Constraint("Diameter", 0, 5.2))
sketch18.addConstraint(Sketcher.Constraint("DistanceX", -1, 1, 0, 3, 6.5))
sketch18.addConstraint(Sketcher.Constraint("DistanceY", 0, 3, -1, 1, 46.5))
sketch18.setExpression("Constraints[0]", "Params.sketch18_diameter")
pocket11 = doc.addObject("PartDesign::Pocket", "Pocket010")
body.addObject(pocket11)
pocket11.Profile = sketch18
pocket11.Type = "ThroughAll"
pocket11.Reversed = True

doc.recompute()
